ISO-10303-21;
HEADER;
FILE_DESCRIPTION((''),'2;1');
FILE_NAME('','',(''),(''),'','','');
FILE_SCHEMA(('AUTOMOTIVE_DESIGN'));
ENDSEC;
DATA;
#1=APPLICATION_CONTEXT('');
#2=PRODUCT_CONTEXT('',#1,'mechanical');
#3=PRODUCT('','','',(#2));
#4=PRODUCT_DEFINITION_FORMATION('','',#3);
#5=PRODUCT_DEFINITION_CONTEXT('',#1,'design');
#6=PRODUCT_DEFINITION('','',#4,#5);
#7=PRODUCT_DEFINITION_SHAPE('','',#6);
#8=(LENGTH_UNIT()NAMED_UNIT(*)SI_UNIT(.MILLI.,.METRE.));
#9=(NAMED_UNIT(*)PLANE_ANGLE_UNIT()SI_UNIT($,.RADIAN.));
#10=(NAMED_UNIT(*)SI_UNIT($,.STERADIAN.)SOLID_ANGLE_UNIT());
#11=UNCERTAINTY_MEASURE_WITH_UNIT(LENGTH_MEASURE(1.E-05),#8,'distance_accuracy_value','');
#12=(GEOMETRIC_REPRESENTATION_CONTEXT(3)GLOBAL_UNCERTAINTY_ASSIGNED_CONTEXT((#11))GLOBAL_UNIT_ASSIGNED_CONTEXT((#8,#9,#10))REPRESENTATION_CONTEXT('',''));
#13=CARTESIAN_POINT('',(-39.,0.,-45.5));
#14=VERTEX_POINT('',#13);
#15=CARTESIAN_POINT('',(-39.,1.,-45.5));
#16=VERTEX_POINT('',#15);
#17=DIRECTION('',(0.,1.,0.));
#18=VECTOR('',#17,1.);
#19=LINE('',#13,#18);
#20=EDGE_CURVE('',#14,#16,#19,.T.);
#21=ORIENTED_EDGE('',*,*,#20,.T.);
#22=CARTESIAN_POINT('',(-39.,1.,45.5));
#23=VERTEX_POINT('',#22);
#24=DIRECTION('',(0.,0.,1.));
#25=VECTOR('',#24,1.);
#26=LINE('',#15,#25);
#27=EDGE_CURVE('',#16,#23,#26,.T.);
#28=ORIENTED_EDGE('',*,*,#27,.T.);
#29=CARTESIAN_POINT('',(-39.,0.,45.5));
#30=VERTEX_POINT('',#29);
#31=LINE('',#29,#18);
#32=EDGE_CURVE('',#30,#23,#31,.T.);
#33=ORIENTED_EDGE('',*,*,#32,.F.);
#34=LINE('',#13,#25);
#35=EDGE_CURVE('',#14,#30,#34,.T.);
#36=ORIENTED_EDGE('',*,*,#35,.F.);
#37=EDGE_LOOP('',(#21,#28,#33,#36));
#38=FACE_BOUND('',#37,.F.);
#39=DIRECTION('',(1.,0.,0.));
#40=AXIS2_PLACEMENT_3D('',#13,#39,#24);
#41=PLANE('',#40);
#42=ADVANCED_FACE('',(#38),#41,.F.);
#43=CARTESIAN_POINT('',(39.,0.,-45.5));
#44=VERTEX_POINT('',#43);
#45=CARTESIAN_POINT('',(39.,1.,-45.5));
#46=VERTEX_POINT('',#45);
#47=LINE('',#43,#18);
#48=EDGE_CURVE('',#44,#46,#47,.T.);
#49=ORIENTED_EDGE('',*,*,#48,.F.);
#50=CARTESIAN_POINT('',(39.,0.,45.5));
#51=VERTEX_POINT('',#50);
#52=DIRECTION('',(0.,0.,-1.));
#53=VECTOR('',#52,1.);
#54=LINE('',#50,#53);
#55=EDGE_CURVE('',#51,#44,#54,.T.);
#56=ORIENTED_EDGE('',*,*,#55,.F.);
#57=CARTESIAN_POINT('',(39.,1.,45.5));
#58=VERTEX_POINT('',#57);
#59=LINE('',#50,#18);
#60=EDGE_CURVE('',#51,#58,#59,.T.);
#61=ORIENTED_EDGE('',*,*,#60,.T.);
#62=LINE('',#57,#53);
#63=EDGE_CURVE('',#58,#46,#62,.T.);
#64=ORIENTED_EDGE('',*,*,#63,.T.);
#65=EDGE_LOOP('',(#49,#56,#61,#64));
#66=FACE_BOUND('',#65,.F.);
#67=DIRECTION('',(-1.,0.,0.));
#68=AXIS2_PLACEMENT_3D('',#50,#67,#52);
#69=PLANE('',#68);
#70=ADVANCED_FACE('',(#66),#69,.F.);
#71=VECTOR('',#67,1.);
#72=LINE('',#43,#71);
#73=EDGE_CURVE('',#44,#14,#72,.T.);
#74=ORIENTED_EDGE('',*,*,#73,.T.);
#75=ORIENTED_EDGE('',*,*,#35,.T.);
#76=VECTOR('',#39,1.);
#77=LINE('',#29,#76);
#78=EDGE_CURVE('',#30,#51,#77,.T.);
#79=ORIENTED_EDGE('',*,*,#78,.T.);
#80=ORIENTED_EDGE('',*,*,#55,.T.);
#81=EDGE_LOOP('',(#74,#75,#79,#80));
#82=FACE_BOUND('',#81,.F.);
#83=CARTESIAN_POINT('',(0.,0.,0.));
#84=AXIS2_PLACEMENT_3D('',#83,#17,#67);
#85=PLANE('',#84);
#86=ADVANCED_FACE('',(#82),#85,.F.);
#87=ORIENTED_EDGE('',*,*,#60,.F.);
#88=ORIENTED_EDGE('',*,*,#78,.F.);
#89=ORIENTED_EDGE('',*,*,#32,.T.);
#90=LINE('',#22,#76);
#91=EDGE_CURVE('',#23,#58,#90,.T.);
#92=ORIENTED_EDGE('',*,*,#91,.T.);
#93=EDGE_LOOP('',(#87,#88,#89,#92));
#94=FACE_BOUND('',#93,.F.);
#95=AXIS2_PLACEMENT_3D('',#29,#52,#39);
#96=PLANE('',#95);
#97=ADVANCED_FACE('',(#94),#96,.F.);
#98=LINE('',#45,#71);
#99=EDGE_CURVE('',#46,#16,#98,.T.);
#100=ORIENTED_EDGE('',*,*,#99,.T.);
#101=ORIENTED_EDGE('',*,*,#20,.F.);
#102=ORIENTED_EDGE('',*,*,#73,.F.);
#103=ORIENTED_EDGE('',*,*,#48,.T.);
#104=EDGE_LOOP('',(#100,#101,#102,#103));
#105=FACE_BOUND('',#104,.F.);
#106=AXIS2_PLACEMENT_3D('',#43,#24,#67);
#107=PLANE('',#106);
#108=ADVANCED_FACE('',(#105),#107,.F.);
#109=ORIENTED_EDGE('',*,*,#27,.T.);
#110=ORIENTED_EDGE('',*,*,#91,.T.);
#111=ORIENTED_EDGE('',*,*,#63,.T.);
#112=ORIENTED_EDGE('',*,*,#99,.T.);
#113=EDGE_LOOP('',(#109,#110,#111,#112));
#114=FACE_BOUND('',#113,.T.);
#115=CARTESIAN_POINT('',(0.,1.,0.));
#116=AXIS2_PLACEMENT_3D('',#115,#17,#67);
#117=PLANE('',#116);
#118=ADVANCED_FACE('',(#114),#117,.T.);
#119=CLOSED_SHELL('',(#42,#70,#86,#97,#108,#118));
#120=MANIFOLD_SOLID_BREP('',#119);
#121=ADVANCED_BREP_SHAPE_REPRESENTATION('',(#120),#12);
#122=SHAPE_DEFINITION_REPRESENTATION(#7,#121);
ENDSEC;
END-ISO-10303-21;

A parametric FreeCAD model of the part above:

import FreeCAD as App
import Part
import Sketcher

V = App.Vector
Q = App.Units.Quantity

doc = App.newDocument("Part")
params = doc.addObject("Spreadsheet::Sheet", "Params")
for row, (alias, value) in enumerate([
    ("sketch1_width", "78 mm"),
    ("sketch1_height", "91 mm"),
    ("pad1_length", "1 mm"),
], start=1):
    params.set(f"A{row}", alias)
    params.set(f"B{row}", "=" + value)
    params.setAlias(f"B{row}", alias)

body = doc.addObject("PartDesign::Body", "Body")

sketch1 = body.newObject("Sketcher::SketchObject", "Sketch")
sketch1.AttachmentSupport = (doc.getObject("XZ_Plane"), [""])
sketch1.MapMode = "FlatFace"
sketch1.addGeometry([
    Part.LineSegment(V(-39, -46, 0), V(-39, 46, 0)),
    Part.LineSegment(V(-39, 46, 0), V(39, 46, 0)),
    Part.LineSegment(V(39, 46, 0), V(39, -46, 0)),
    Part.LineSegment(V(39, -46, 0), V(-39, -46, 0)),
], False)
sketch1.addConstraint([
    Sketcher.Constraint("Coincident", 0, 2, 1, 1),
    Sketcher.Constraint("Coincident", 1, 2, 2, 1),
    Sketcher.Constraint("Coincident", 2, 2, 3, 1),
    Sketcher.Constraint("Coincident", 3, 2, 0, 1),
    Sketcher.Constraint("Vertical", 0),
    Sketcher.Constraint("Horizontal", 1),
    Sketcher.Constraint("Vertical", 2),
    Sketcher.Constraint("Horizontal", 3),
    Sketcher.Constraint("Symmetric", 0, 2, 2, 2, -1, 1),
    Sketcher.Constraint("DistanceX", 1, 1, 1, 2, Q("78 mm")),
    Sketcher.Constraint("DistanceY", 0, 1, 0, 2, Q("91 mm")),
])
sketch1.setExpression("Constraints[9]", "Params.sketch1_width")
sketch1.setExpression("Constraints[10]", "Params.sketch1_height")
pad1 = body.newObject("PartDesign::Pad", "Pad")
pad1.Profile = sketch1
pad1.setExpression("Length", "Params.pad1_length")
pad1.Reversed = True

doc.recompute()
